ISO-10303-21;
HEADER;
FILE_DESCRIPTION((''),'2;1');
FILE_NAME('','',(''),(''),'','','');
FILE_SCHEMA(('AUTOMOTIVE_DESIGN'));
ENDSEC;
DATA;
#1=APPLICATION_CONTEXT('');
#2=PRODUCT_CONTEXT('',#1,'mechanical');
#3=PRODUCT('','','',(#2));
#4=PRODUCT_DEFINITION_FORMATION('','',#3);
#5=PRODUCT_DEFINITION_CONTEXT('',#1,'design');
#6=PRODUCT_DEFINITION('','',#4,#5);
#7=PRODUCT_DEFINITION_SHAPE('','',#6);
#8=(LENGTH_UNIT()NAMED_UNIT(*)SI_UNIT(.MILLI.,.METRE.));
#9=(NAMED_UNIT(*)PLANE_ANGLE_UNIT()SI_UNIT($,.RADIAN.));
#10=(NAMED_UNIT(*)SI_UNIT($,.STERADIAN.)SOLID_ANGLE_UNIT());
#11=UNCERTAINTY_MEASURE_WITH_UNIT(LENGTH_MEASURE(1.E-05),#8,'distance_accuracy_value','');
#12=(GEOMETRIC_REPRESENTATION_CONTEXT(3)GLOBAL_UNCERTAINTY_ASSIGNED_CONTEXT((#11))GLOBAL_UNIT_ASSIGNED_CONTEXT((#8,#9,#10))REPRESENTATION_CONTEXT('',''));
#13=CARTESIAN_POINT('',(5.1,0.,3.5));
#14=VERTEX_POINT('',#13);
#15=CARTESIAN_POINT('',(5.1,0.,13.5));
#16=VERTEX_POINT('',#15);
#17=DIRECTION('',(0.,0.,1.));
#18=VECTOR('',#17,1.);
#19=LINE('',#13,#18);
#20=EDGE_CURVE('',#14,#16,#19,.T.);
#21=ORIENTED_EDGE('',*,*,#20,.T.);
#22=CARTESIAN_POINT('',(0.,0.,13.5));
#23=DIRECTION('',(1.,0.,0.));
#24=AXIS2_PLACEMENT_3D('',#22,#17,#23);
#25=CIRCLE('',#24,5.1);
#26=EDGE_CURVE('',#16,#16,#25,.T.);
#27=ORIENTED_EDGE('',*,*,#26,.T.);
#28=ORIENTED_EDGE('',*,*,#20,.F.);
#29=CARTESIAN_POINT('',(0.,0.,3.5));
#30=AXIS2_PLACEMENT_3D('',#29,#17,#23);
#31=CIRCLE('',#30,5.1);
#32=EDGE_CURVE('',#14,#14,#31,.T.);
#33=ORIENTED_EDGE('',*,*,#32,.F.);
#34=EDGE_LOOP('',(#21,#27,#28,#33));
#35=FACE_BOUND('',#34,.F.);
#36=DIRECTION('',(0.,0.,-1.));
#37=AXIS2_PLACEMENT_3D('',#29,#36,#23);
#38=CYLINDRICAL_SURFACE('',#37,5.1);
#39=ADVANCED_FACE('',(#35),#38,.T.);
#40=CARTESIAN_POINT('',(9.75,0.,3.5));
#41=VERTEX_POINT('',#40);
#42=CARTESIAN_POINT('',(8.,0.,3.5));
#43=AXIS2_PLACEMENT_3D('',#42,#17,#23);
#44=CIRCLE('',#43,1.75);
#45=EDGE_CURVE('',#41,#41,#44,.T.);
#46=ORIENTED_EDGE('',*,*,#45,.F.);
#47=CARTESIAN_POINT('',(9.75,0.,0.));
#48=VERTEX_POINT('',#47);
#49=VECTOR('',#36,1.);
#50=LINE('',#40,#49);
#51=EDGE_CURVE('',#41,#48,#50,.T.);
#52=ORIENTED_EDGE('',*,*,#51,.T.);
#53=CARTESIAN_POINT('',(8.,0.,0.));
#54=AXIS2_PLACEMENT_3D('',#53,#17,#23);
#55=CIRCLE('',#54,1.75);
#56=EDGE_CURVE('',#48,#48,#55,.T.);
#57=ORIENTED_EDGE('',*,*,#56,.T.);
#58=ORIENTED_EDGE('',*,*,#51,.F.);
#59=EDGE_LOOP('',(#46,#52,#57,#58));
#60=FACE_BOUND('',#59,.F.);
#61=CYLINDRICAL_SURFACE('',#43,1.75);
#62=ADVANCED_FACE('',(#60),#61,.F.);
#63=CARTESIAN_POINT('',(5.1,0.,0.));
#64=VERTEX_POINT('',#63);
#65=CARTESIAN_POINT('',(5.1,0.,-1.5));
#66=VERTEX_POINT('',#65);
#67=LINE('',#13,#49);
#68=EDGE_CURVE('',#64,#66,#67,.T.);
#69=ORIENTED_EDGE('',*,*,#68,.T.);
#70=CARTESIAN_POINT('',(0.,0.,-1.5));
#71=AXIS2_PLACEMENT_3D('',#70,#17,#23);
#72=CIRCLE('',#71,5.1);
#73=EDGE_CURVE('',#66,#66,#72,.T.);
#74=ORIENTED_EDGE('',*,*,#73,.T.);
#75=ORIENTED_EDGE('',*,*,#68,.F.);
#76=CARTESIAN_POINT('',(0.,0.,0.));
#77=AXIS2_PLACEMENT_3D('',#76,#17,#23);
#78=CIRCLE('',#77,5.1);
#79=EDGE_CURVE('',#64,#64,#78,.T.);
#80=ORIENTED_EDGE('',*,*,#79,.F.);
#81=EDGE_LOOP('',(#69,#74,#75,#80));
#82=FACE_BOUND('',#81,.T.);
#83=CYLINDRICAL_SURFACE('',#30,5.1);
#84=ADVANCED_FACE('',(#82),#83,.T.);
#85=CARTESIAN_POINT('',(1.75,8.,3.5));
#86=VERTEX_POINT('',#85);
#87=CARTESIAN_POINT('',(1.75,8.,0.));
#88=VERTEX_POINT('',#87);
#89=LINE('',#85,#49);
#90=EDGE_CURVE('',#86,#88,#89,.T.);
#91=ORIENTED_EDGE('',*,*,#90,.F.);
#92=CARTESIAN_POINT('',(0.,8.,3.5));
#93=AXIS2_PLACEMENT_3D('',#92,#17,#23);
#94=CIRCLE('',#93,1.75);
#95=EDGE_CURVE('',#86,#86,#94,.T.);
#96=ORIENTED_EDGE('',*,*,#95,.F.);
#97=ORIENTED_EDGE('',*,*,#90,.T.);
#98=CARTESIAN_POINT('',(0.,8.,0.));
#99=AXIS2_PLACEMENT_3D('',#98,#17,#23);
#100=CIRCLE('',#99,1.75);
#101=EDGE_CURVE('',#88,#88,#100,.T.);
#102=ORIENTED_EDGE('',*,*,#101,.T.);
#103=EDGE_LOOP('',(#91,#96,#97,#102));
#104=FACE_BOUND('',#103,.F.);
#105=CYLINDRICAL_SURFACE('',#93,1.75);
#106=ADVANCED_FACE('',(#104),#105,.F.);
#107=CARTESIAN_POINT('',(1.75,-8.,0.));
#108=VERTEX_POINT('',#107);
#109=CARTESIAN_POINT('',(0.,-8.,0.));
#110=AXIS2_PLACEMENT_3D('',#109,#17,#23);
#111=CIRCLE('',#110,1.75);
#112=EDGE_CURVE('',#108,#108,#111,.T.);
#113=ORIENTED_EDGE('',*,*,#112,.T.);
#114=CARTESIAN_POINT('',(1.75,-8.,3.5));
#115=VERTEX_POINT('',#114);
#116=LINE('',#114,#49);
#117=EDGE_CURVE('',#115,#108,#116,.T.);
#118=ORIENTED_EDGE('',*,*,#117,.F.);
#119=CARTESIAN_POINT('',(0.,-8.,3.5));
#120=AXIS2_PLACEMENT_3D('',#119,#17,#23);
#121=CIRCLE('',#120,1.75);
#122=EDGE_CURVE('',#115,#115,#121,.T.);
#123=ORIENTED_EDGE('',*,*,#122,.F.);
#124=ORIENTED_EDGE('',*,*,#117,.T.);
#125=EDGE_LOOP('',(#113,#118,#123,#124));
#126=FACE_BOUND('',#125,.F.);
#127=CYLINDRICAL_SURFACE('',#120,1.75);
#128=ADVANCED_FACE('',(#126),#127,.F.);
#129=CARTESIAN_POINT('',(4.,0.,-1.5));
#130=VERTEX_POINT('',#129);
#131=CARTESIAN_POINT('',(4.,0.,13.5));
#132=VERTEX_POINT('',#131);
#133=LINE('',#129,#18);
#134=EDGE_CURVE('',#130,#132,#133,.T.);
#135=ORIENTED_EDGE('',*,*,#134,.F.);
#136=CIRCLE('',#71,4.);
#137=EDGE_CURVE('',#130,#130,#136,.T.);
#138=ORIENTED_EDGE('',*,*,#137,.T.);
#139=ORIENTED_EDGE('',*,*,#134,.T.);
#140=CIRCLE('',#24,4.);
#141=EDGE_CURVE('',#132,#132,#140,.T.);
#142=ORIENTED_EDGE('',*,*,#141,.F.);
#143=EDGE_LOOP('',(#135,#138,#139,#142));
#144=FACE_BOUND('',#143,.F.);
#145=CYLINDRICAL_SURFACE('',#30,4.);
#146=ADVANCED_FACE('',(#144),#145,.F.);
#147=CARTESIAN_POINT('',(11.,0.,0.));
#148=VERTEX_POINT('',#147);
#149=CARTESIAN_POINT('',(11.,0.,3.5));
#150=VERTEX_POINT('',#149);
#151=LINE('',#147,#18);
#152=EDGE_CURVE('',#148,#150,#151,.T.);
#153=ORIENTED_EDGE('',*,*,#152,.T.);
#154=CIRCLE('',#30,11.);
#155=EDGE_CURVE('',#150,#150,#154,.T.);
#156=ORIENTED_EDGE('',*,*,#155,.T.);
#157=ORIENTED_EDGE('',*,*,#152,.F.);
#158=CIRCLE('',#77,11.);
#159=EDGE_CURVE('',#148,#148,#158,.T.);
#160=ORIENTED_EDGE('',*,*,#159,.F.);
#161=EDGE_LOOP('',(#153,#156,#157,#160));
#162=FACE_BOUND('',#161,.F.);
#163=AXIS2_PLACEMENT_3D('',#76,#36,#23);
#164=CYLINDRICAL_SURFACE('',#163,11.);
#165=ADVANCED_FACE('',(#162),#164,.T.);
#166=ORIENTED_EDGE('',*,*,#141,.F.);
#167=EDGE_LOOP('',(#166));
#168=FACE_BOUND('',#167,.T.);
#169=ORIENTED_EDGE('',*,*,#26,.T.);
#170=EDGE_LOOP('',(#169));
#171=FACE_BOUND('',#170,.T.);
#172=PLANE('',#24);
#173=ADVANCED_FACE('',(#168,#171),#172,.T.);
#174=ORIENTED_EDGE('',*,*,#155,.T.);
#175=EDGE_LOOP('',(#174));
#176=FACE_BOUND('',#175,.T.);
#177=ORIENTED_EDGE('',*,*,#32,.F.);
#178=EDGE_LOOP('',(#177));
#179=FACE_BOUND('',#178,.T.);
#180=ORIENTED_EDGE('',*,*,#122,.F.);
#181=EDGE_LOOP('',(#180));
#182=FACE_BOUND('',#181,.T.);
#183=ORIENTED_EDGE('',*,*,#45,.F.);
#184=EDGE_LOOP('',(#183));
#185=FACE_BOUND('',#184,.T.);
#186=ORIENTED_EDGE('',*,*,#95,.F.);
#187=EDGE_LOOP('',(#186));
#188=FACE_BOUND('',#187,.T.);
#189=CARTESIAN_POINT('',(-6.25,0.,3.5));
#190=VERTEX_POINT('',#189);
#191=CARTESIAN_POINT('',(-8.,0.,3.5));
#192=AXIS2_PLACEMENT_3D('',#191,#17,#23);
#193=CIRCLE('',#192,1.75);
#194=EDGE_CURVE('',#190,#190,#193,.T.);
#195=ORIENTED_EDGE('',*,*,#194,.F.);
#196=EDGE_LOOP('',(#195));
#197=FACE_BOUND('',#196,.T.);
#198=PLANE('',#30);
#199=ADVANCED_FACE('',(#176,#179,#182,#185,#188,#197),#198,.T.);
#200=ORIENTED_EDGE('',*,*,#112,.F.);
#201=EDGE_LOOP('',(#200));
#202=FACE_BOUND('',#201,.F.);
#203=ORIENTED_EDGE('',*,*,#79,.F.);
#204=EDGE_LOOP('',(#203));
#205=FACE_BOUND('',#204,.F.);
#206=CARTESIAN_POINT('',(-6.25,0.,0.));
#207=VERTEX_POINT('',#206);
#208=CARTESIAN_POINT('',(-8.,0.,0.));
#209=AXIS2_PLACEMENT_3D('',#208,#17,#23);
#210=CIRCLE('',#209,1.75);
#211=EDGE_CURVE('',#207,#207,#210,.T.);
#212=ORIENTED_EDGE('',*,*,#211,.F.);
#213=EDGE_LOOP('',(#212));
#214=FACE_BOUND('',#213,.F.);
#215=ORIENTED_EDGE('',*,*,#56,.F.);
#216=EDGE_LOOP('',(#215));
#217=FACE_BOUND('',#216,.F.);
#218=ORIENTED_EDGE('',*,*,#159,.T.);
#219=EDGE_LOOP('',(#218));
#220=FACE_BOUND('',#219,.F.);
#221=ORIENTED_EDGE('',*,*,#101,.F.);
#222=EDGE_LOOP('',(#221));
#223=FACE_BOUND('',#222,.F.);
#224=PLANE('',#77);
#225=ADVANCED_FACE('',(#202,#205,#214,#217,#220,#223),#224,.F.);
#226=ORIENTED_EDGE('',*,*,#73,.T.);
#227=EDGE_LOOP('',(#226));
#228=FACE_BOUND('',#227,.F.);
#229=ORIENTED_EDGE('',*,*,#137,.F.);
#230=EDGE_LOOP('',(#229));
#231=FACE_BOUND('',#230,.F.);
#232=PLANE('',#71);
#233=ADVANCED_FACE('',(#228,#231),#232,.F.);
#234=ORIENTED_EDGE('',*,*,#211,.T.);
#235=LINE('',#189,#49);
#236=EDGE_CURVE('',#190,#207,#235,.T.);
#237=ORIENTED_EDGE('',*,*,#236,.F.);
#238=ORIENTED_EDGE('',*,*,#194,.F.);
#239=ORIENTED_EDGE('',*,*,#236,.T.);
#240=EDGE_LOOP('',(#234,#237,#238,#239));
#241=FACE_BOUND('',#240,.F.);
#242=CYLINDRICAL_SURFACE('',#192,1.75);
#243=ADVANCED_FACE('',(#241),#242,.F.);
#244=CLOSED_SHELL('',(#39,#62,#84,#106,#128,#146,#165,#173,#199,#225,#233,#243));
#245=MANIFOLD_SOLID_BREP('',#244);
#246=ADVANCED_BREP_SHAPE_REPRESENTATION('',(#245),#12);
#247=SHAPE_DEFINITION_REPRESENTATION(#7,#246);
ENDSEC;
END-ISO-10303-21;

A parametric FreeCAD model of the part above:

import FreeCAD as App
import Part
import Sketcher
Q = App.Units.Quantity

doc = App.newDocument("Part")
body = doc.addObject("PartDesign::Body", "Body")

# Sketch on XY plane
sketch1 = body.newObject("Sketcher::SketchObject", "Sketch")
sketch1.AttachmentSupport = (doc.getObject("XY_Plane"), [""])
sketch1.MapMode = "FlatFace"
sketch1.addGeometry(Part.Circle(App.Vector(0, 0, 0), App.Vector(0, 0, 1), 11), False)
sketch1.addConstraint([
    Sketcher.Constraint("Coincident", 0, 3, -1, 1),
    Sketcher.Constraint("Diameter", 0, Q("22 mm")),
])
pad1 = body.newObject("PartDesign::Pad", "Pad")
pad1.Profile = sketch1
pad1.Length = 3.5

# Sketch on XY plane
sketch2 = body.newObject("Sketcher::SketchObject", "Sketch001")
sketch2.AttachmentSupport = (doc.getObject("XY_Plane"), [""])
sketch2.MapMode = "FlatFace"
sketch2.AttachmentOffset = App.Placement(App.Vector(0, 0, 3.5), App.Rotation())
sketch2.addGeometry(Part.Circle(App.Vector(0, 0, 0), App.Vector(0, 0, 1), 4), False)
sketch2.addConstraint([
    Sketcher.Constraint("Coincident", 0, 3, -1, 1),
    Sketcher.Constraint("Diameter", 0, Q("8 mm")),
])
pocket1 = body.newObject("PartDesign::Pocket", "Pocket")
pocket1.Profile = sketch2
pocket1.Type = "ThroughAll"

# Sketch on XY plane
sketch3 = body.newObject("Sketcher::SketchObject", "Sketch002")
sketch3.AttachmentSupport = (doc.getObject("XY_Plane"), [""])
sketch3.MapMode = "FlatFace"
sketch3.AttachmentOffset = App.Placement(App.Vector(0, 0, 3.5), App.Rotation())
sketch3.addGeometry([
    Part.Circle(App.Vector(0, 0, 0), App.Vector(0, 0, 1), 5.1),
    Part.Circle(App.Vector(0, 0, 0), App.Vector(0, 0, 1), 4),
], False)
sketch3.addConstraint([
    Sketcher.Constraint("Coincident", 0, 3, -1, 1),
    Sketcher.Constraint("Coincident", 1, 3, -1, 1),
    Sketcher.Constraint("Diameter", 1, Q("8 mm")),
    Sketcher.Constraint("Diameter", 0, Q("10.2 mm")),
])
pad2 = body.newObject("PartDesign::Pad", "Pad001")
pad2.Profile = sketch3
pad2.Type = "TwoLengths"
pad2.Length = 10
pad2.Length2 = 5

# Sketch on XY plane
sketch4 = body.newObject("Sketcher::SketchObject", "Sketch003")
sketch4.AttachmentSupport = (doc.getObject("XY_Plane"), [""])
sketch4.MapMode = "FlatFace"
sketch4.AttachmentOffset = App.Placement(App.Vector(0, 0, 3.5), App.Rotation())
sketch4.addGeometry([
    Part.Circle(App.Vector(8, 0, 0), App.Vector(0, 0, 1), 1.8),
    Part.Circle(App.Vector(0, -8, 0), App.Vector(0, 0, 1), 1.8),
    Part.Circle(App.Vector(0, 8, 0), App.Vector(0, 0, 1), 1.8),
    Part.Circle(App.Vector(-8, 0, 0), App.Vector(0, 0, 1), 1.8),
], False)
sketch4.addConstraint([
    Sketcher.Constraint("Equal", 0, 1),
    Sketcher.Constraint("Equal", 1, 2),
    Sketcher.Constraint("Equal", 2, 3),
    Sketcher.Constraint("Symmetric", 1, 3, 2, 3, -1, 1),
    Sketcher.Constraint("Symmetric", 0, 3, 3, 3, -1, 1),
    Sketcher.Constraint("PointOnObject", 0, 3, -1),
    Sketcher.Constraint("PointOnObject", 1, 3, -2),
    Sketcher.Constraint("Diameter", 0, Q("3.5 mm")),
    Sketcher.Constraint("DistanceX", -1, 1, 0, 3, Q("8 mm")),
    Sketcher.Constraint("DistanceY", 1, 3, -1, 1, Q("8 mm")),
])
pocket2 = body.newObject("PartDesign::Pocket", "Pocket001")
pocket2.Profile = sketch4
pocket2.Type = "ThroughAll"

doc.recompute()
